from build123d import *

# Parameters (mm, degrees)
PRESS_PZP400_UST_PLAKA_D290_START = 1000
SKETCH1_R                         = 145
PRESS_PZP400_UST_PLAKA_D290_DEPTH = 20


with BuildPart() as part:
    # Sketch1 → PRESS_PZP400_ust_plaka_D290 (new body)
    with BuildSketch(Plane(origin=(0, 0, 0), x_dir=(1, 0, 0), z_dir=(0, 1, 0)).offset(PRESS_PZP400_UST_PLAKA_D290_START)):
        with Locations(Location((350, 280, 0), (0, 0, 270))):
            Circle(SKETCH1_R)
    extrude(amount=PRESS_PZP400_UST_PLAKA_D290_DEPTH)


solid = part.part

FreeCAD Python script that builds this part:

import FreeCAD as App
import Part
import Sketcher

V = App.Vector
Q = App.Units.Quantity

doc = App.newDocument("Part")
body = doc.addObject("PartDesign::Body", "Body")

sketch1 = doc.addObject("Sketcher::SketchObject", "Sketch")
body.addObject(sketch1)
sketch1.AttachmentSupport = (doc.XZ_Plane, [""])
sketch1.MapMode = "FlatFace"
sketch1.AttachmentOffset = App.Placement(V(0, 0, -1000), App.Rotation())
sketch1.addGeometry(Part.Circle(V(350, -280, 0), V(0, 0, 1), 145), False)
sketch1.addConstraint([
    Sketcher.Constraint("Diameter", 0, Q("290 mm")),
    Sketcher.Constraint("DistanceX", -1, 1, 0, 3, Q("350 mm")),
    Sketcher.Constraint("DistanceY", 0, 3, -1, 1, Q("280 mm")),
])
pad1 = doc.addObject("PartDesign::Pad", "Pad")
body.addObject(pad1)
pad1.Profile = sketch1
pad1.Length = 20
pad1.Reversed = True

doc.recompute()
